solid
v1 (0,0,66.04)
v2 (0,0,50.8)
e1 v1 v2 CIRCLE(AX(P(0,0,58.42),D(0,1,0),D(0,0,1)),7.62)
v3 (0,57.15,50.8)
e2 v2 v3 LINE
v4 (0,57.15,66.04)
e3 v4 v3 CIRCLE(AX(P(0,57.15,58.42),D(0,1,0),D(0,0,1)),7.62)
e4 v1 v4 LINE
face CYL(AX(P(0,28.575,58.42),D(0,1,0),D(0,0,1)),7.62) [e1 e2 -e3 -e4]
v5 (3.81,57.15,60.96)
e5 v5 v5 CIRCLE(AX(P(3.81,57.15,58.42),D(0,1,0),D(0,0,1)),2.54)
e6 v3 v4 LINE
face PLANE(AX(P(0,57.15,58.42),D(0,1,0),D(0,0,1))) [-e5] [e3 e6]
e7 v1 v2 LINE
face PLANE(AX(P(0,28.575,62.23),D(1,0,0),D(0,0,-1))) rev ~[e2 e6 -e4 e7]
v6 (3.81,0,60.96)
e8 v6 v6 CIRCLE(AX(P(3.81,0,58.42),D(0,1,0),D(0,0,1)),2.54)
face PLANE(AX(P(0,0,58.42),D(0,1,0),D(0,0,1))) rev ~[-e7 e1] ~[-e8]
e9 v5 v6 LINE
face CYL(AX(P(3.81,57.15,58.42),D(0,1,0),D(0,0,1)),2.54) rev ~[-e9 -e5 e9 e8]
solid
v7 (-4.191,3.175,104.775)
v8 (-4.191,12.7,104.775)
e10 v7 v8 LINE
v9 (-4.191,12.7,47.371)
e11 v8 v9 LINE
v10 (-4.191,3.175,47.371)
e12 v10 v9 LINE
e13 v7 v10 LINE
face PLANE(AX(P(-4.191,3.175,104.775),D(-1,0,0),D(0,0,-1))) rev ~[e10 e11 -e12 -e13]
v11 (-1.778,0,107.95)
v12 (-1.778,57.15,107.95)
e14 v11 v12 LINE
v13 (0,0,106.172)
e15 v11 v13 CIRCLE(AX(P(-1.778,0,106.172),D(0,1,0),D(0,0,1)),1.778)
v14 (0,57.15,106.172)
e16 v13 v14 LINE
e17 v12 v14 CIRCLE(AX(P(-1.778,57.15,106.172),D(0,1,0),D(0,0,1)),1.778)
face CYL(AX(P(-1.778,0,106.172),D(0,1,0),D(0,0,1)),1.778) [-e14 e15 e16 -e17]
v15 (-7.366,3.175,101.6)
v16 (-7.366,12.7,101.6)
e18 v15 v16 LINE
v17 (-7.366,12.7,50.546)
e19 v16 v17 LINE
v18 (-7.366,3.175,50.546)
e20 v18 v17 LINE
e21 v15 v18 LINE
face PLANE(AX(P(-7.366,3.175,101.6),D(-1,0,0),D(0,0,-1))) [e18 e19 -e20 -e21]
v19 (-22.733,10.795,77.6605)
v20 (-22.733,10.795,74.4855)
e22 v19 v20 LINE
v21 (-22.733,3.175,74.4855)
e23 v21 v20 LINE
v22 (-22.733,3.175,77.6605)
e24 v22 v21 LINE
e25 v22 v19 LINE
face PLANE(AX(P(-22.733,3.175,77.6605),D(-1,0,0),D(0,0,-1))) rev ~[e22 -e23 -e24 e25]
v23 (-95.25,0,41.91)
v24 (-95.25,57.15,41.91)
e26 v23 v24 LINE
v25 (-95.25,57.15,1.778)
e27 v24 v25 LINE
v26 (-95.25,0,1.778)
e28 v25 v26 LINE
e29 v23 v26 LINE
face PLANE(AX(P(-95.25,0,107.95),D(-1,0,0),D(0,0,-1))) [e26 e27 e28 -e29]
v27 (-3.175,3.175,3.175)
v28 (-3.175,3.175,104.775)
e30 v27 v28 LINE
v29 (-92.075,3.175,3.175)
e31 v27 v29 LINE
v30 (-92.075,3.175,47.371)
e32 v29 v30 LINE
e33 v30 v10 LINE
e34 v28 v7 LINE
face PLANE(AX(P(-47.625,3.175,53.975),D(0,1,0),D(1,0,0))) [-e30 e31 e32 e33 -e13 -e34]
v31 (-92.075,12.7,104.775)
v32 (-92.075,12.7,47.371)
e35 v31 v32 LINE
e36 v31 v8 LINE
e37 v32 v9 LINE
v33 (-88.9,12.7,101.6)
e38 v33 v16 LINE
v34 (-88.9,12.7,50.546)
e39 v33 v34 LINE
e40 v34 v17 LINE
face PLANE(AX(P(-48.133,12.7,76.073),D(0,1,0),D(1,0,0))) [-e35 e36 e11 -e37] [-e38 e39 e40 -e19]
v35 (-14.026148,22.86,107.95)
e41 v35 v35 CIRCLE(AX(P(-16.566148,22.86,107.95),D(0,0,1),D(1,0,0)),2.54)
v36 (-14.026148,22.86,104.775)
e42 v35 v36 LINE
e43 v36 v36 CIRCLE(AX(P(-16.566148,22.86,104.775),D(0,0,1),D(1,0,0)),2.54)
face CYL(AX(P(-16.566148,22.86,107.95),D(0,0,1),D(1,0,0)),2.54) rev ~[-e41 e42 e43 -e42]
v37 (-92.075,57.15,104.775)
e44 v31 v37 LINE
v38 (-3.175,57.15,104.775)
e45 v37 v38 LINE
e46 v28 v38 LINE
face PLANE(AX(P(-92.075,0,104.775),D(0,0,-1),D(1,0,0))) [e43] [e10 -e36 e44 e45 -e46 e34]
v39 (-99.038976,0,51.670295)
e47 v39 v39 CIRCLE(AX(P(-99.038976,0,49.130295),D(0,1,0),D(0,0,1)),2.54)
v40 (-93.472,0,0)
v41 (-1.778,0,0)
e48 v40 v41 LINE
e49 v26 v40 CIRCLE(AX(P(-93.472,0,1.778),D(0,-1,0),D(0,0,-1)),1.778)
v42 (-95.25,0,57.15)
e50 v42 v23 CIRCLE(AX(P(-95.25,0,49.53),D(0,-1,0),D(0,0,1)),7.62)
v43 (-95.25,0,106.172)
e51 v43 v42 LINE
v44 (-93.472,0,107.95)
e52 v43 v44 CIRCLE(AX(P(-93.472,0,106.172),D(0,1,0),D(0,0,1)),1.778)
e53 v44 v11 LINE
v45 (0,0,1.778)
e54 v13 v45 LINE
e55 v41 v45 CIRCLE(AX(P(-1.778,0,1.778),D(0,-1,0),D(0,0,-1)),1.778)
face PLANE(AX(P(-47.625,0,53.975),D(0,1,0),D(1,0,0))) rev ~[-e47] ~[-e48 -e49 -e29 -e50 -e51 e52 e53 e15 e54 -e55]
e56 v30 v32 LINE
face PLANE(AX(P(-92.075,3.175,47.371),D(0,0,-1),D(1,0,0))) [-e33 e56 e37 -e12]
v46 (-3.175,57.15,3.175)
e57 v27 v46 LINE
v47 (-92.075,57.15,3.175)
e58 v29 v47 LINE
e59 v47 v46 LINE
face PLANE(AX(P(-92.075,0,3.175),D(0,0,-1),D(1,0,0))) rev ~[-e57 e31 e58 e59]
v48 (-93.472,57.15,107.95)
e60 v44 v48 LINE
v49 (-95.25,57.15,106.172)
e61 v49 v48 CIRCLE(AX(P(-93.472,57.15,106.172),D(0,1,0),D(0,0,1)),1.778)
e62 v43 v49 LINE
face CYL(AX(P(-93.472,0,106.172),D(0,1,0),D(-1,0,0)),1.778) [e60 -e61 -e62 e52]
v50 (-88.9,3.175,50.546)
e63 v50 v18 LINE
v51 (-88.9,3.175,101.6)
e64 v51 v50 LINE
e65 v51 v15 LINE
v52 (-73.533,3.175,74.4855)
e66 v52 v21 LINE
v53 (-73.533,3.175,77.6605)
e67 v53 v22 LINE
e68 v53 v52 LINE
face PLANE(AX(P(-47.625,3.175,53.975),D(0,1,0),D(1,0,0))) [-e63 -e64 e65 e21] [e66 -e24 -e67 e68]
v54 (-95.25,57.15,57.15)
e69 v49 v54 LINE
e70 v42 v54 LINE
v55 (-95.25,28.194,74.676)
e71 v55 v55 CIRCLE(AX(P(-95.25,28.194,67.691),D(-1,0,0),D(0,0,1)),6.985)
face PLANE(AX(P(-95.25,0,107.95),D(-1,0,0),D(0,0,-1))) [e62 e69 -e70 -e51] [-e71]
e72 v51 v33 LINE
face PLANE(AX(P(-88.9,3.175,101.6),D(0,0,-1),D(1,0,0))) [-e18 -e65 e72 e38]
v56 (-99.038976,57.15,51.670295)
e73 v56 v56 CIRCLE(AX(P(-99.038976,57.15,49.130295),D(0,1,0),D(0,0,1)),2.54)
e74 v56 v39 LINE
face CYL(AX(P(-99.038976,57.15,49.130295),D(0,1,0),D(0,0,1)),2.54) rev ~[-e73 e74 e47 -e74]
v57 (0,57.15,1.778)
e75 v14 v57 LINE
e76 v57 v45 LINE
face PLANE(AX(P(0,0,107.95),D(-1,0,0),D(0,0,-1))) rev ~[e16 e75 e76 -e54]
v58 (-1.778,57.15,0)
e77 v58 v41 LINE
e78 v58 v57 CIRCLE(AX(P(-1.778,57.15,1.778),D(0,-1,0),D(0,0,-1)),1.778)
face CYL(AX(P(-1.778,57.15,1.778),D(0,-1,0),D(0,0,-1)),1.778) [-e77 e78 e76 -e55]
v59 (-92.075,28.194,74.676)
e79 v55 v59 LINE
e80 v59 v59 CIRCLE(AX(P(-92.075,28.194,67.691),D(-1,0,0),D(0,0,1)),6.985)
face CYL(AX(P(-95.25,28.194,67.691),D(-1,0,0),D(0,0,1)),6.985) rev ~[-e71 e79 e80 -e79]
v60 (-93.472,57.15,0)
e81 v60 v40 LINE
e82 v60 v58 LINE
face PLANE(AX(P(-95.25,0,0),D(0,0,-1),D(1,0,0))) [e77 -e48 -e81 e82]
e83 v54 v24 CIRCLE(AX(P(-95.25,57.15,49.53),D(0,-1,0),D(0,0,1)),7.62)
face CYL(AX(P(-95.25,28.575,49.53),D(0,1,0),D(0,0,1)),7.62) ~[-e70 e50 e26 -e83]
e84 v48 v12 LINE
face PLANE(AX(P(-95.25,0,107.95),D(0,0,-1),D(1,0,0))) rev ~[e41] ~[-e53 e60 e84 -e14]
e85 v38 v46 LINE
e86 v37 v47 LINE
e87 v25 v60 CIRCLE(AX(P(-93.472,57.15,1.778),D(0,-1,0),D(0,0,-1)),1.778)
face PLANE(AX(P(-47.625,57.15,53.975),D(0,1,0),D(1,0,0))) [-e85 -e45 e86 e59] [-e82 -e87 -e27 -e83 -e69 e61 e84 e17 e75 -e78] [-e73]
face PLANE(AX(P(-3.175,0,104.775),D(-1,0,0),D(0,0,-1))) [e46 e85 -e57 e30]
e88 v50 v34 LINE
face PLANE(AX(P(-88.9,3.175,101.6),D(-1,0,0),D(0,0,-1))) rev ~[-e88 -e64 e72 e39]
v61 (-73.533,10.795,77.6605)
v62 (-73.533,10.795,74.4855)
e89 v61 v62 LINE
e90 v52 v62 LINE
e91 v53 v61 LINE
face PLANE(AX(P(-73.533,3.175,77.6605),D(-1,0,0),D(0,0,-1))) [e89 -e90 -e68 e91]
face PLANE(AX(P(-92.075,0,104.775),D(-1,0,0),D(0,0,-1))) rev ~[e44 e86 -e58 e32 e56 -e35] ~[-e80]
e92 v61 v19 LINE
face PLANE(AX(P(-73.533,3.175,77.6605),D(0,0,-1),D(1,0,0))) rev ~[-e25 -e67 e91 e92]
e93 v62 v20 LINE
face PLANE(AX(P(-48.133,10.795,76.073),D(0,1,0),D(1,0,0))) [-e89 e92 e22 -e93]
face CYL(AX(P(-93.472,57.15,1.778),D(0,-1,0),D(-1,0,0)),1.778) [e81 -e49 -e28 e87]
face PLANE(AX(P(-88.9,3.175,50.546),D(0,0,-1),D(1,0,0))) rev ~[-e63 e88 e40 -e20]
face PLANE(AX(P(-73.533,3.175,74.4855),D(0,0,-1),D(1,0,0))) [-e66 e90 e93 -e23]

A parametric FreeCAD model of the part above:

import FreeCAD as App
import Part
import Sketcher
Q = App.Units.Quantity


def edges_at(feature, points):
    """Names of the edges that pass closest to the given points."""
    edges = feature.Shape.Edges
    near = lambda p: min(range(len(edges)), key=lambda i: edges[i].distToShape(Part.Vertex(*p))[0])
    return sorted({f"Edge{near(p) + 1}" for p in points})


def add_polygon(sketch, points):
    """Adds a closed chain of lines whose ends are joined by coincident constraints."""
    first, n = sketch.GeometryCount, len(points)
    for a, b in zip(points, points[1:] + points[:1]):
        sketch.addGeometry(Part.LineSegment(App.Vector(*a, 0), App.Vector(*b, 0)), False)
    for i in range(n):
        sketch.addConstraint(Sketcher.Constraint("Coincident", first + i, 2, first + (i + 1) % n, 1))

doc = App.newDocument("Part")
body = doc.addObject("PartDesign::Body", "Body")

# Sketch on XZ plane
sketch1 = doc.addObject("Sketcher::SketchObject", "Sketch")
body.addObject(sketch1)
sketch1.AttachmentSupport = (doc.XZ_Plane, [""])
sketch1.MapMode = "FlatFace"
add_polygon(sketch1, [(-95, 0), (-95, 108), (0, 108), (0, 0)])  # lines 0-3
sketch1.addConstraint(Sketcher.Constraint("Vertical", 0))
sketch1.addConstraint(Sketcher.Constraint("Horizontal", 1))
sketch1.addConstraint(Sketcher.Constraint("Vertical", 2))
sketch1.addConstraint(Sketcher.Constraint("Horizontal", 3))
sketch1.addConstraint(Sketcher.Constraint("Coincident", 2, 2, -1, 1))
sketch1.addConstraint(Sketcher.Constraint("DistanceX", 1, 1, 1, 2, Q("3.75 in")))
sketch1.addConstraint(Sketcher.Constraint("DistanceY", 0, 1, 0, 2, Q("4.25 in")))
pad1 = doc.addObject("PartDesign::Pad", "Pad")
body.addObject(pad1)
pad1.Profile = sketch1
pad1.Length = Q("0.125 in")
pad1.Reversed = True

# Sketch on XZ plane
sketch2 = doc.addObject("Sketcher::SketchObject", "Sketch001")
body.addObject(sketch2)
sketch2.AttachmentSupport = (doc.XZ_Plane, [""])
sketch2.MapMode = "FlatFace"
add_polygon(sketch2, [(-95, 0), (-95, 108), (0, 108), (0, 0)])  # lines 0-3
add_polygon(sketch2, [(-3, 105), (-92, 105), (-92, 3), (-3, 3)])  # lines 4-7
sketch2.addConstraint(Sketcher.Constraint("Vertical", 0))
sketch2.addConstraint(Sketcher.Constraint("Horizontal", 1))
sketch2.addConstraint(Sketcher.Constraint("Vertical", 2))
sketch2.addConstraint(Sketcher.Constraint("Horizontal", 3))
sketch2.addConstraint(Sketcher.Constraint("Horizontal", 4))
sketch2.addConstraint(Sketcher.Constraint("Vertical", 5))
sketch2.addConstraint(Sketcher.Constraint("Horizontal", 6))
sketch2.addConstraint(Sketcher.Constraint("Vertical", 7))
sketch2.addConstraint(Sketcher.Constraint("Coincident", 2, 2, -1, 1))
sketch2.addConstraint(Sketcher.Constraint("DistanceY", 5, 2, 5, 1, Q("4 in")))
sketch2.addConstraint(Sketcher.Constraint("DistanceX", 4, 2, 4, 1, Q("3.5 in")))
sketch2.addConstraint(Sketcher.Constraint("DistanceX", 1, 1, 1, 2, Q("3.75 in")))
sketch2.addConstraint(Sketcher.Constraint("DistanceY", 0, 1, 0, 2, Q("4.25 in")))
sketch2.addConstraint(Sketcher.Constraint("DistanceX", 4, 2, -1, 1, Q("3.625 in")))
sketch2.addConstraint(Sketcher.Constraint("DistanceY", -1, 1, 4, 2, Q("4.125 in")))
pad2 = doc.addObject("PartDesign::Pad", "Pad001")
body.addObject(pad2)
pad2.Profile = sketch2
pad2.Length = Q("2.25 in")
pad2.Reversed = True

# Sketch on XY plane
sketch3 = doc.addObject("Sketcher::SketchObject", "Sketch002")
body.addObject(sketch3)
sketch3.AttachmentSupport = (doc.XY_Plane, [""])
sketch3.MapMode = "FlatFace"
sketch3.AttachmentOffset = App.Placement(App.Vector(0, 0, 4.25 * 25.4), App.Rotation())
sketch3.addGeometry(Part.Circle(App.Vector(-16.6, 22.9, 0), App.Vector(0, 0, 1), 2.5), False)
sketch3.addConstraint(Sketcher.Constraint("Diameter", 0, Q("0.2 in")))
sketch3.addConstraint(Sketcher.Constraint("DistanceY", -1, 1, 0, 3, Q("0.9 in")))
sketch3.addConstraint(Sketcher.Constraint("DistanceX", 0, 3, -1, 1, Q("16.566148 mm")))
pocket1 = doc.addObject("PartDesign::Pocket", "Pocket")
body.addObject(pocket1)
pocket1.Profile = sketch3
pocket1.Length = Q("0.5 in")
doc.recompute()

fillet = doc.addObject("PartDesign::Fillet", "Fillet")
body.addObject(fillet)
fillet.Base = (pocket1, edges_at(pocket1, [
    (0, 28.575, 0),
    (0, 28.575, 107.95),
    (-95.25, 28.575, 107.95),
    (-95.25, 28.575, 0),
]))
fillet.Radius = Q("0.07 in")

# Sketch on YZ plane
sketch4 = doc.addObject("Sketcher::SketchObject", "Sketch003")
body.addObject(sketch4)
sketch4.AttachmentSupport = (doc.YZ_Plane, [""])
sketch4.MapMode = "FlatFace"
sketch4.AttachmentOffset = App.Placement(App.Vector(0, 0, -3.75 * 25.4), App.Rotation())
add_polygon(sketch4, [(57, 50), (0, 50), (0, 57), (57, 57)])  # lines 0-3
sketch4.addGeometry(Part.LineSegment(App.Vector(57, 50, 0), App.Vector(0, 50, 0)), True)  # axis
sketch4.addConstraint(Sketcher.Constraint("Horizontal", 0))
sketch4.addConstraint(Sketcher.Constraint("Vertical", 1))
sketch4.addConstraint(Sketcher.Constraint("Horizontal", 2))
sketch4.addConstraint(Sketcher.Constraint("Vertical", 3))
sketch4.addConstraint(Sketcher.Constraint("Horizontal", 4))
sketch4.addConstraint(Sketcher.Constraint("Coincident", 4, 1, 3, 2))
sketch4.addConstraint(Sketcher.Constraint("PointOnObject", 0, 2, -2))
sketch4.addConstraint(Sketcher.Constraint("PointOnObject", 4, 2, -2))
sketch4.addConstraint(Sketcher.Constraint("DistanceY", 1, 1, 1, 2, Q("0.3 in")))
sketch4.addConstraint(Sketcher.Constraint("DistanceX", 0, 2, 0, 1, Q("2.25 in")))
sketch4.addConstraint(Sketcher.Constraint("DistanceY", -1, 1, 0, 2, Q("1.95 in")))
revolution = doc.addObject("PartDesign::Revolution", "Revolution")
body.addObject(revolution)
revolution.Profile = sketch4
revolution.ReferenceAxis = (sketch4, ["Axis0"])
revolution.Angle = 180

# Sketch on XZ plane
sketch5 = doc.addObject("Sketcher::SketchObject", "Sketch004")
body.addObject(sketch5)
sketch5.AttachmentSupport = (doc.XZ_Plane, [""])
sketch5.MapMode = "FlatFace"
sketch5.AttachmentOffset = App.Placement(App.Vector(0, 0, -2.25 * 25.4), App.Rotation())
sketch5.addGeometry(Part.Circle(App.Vector(-99, 49.1, 0), App.Vector(0, 0, 1), 2.5), False)
sketch5.addConstraint(Sketcher.Constraint("Diameter", 0, Q("0.2 in")))
sketch5.addConstraint(Sketcher.Constraint("DistanceX", 0, 3, -1, 1, Q("99.038976 mm")))
sketch5.addConstraint(Sketcher.Constraint("DistanceY", -1, 1, 0, 3, Q("49.130295 mm")))
pocket2 = doc.addObject("PartDesign::Pocket", "Pocket001")
body.addObject(pocket2)
pocket2.Profile = sketch5
pocket2.Type = "ThroughAll"
pocket2.Reversed = True

# Sketch on XZ plane
sketch6 = doc.addObject("Sketcher::SketchObject", "Sketch005")
body.addObject(sketch6)
sketch6.AttachmentSupport = (doc.XZ_Plane, [""])
sketch6.MapMode = "FlatFace"
sketch6.AttachmentOffset = App.Placement(App.Vector(0, 0, -0.125 * 25.4), App.Rotation())
add_polygon(sketch6, [(-92, 47), (-92, 105), (-4, 105), (-4, 47)])  # lines 0-3
add_polygon(sketch6, [(-7, 102), (-89, 102), (-89, 51), (-7, 51)])  # lines 4-7
sketch6.addConstraint(Sketcher.Constraint("Vertical", 0))
sketch6.addConstraint(Sketcher.Constraint("Horizontal", 1))
sketch6.addConstraint(Sketcher.Constraint("Vertical", 2))
sketch6.addConstraint(Sketcher.Constraint("Horizontal", 3))
sketch6.addConstraint(Sketcher.Constraint("Horizontal", 4))
sketch6.addConstraint(Sketcher.Constraint("Vertical", 5))
sketch6.addConstraint(Sketcher.Constraint("Horizontal", 6))
sketch6.addConstraint(Sketcher.Constraint("Vertical", 7))
sketch6.addConstraint(Sketcher.Constraint("DistanceY", -1, 1, 4, 2, Q("4 in")))
sketch6.addConstraint(Sketcher.Constraint("DistanceX", 1, 1, 1, 2, Q("3.46 in")))
sketch6.addConstraint(Sketcher.Constraint("DistanceX", 4, 2, 4, 1, Q("3.21 in")))
sketch6.addConstraint(Sketcher.Constraint("DistanceY", 0, 1, 0, 2, Q("2.26 in")))
sketch6.addConstraint(Sketcher.Constraint("DistanceY", 5, 2, 5, 1, Q("2.01 in")))
sketch6.addConstraint(Sketcher.Constraint("DistanceX", 4, 2, -1, 1, Q("3.5 in")))
sketch6.addConstraint(Sketcher.Constraint("DistanceX", 0, 2, -1, 1, Q("3.625 in")))
sketch6.addConstraint(Sketcher.Constraint("DistanceY", -1, 1, 0, 2, Q("4.125 in")))
pad3 = doc.addObject("PartDesign::Pad", "Pad002")
body.addObject(pad3)
pad3.Profile = sketch6
pad3.Length = Q("0.375 in")
pad3.Reversed = True

# Sketch on XZ plane
sketch7 = doc.addObject("Sketcher::SketchObject", "Sketch006")
body.addObject(sketch7)
sketch7.AttachmentSupport = (doc.XZ_Plane, [""])
sketch7.MapMode = "FlatFace"
sketch7.AttachmentOffset = App.Placement(App.Vector(0, 0, -0.125 * 25.4), App.Rotation())
add_polygon(sketch7, [(-73.5, 74.5), (-73.5, 77.7), (-22.7, 77.7), (-22.7, 74.5)])  # lines 0-3
sketch7.addConstraint(Sketcher.Constraint("Vertical", 0))
sketch7.addConstraint(Sketcher.Constraint("Horizontal", 1))
sketch7.addConstraint(Sketcher.Constraint("Vertical", 2))
sketch7.addConstraint(Sketcher.Constraint("Horizontal", 3))
sketch7.addConstraint(Sketcher.Constraint("DistanceX", 1, 1, 1, 2, Q("2 in")))
sketch7.addConstraint(Sketcher.Constraint("DistanceY", 0, 1, 0, 2, Q("0.125 in")))
sketch7.addConstraint(Sketcher.Constraint("DistanceX", 0, 2, -1, 1, Q("2.895 in")))
sketch7.addConstraint(Sketcher.Constraint("DistanceY", -1, 1, 0, 2, Q("3.0575 in")))
pad4 = doc.addObject("PartDesign::Pad", "Pad003")
body.addObject(pad4)
pad4.Profile = sketch7
pad4.Length = Q("0.3 in")
pad4.Reversed = True

# Sketch on YZ plane
sketch8 = doc.addObject("Sketcher::SketchObject", "Sketch007")
body.addObject(sketch8)
sketch8.AttachmentSupport = (doc.YZ_Plane, [""])
sketch8.MapMode = "FlatFace"
sketch8.AttachmentOffset = App.Placement(App.Vector(0, 0, -3.75 * 25.4), App.Rotation())
sketch8.addGeometry(Part.Circle(App.Vector(28, 68, 0), App.Vector(0, 0, 1), 7), False)
sketch8.addConstraint(Sketcher.Constraint("Diameter", 0, Q("0.55 in")))
sketch8.addConstraint(Sketcher.Constraint("DistanceX", -1, 1, 0, 3, Q("1.11 in")))
sketch8.addConstraint(Sketcher.Constraint("DistanceY", -1, 1, 0, 3, Q("2.665 in")))
pocket3 = doc.addObject("PartDesign::Pocket", "Pocket002")
body.addObject(pocket3)
pocket3.Profile = sketch8
pocket3.Length = Q("0.3 in")
pocket3.Reversed = True
body2 = doc.addObject("PartDesign::Body", "Body001")

# Sketch on YZ plane
sketch9 = doc.addObject("Sketcher::SketchObject", "Sketch008")
body2.addObject(sketch9)
sketch9.AttachmentSupport = (doc.getObject("YZ_Plane001"), [""])
sketch9.MapMode = "FlatFace"
add_polygon(sketch9, [(57, 66), (0, 66), (0, 58), (57, 58)])  # lines 0-3
sketch9.addGeometry(Part.LineSegment(App.Vector(0, 58, 0), App.Vector(57, 58, 0)), True)  # axis
sketch9.addConstraint(Sketcher.Constraint("Horizontal", 0))
sketch9.addConstraint(Sketcher.Constraint("Vertical", 1))
sketch9.addConstraint(Sketcher.Constraint("Horizontal", 2))
sketch9.addConstraint(Sketcher.Constraint("Vertical", 3))
sketch9.addConstraint(Sketcher.Constraint("Horizontal", 4))
sketch9.addConstraint(Sketcher.Constraint("Coincident", 4, 1, 1, 2))
sketch9.addConstraint(Sketcher.Constraint("PointOnObject", 0, 2, -2))
sketch9.addConstraint(Sketcher.Constraint("Vertical", 3, 2, 4, 2))
sketch9.addConstraint(Sketcher.Constraint("DistanceY", 1, 2, 1, 1, Q("0.3 in")))
sketch9.addConstraint(Sketcher.Constraint("DistanceX", 0, 2, 0, 1, Q("2.25 in")))
sketch9.addConstraint(Sketcher.Constraint("DistanceY", -1, 1, 0, 2, Q("2.6 in")))
revolution2 = doc.addObject("PartDesign::Revolution", "Revolution001")
body2.addObject(revolution2)
revolution2.Profile = sketch9
revolution2.ReferenceAxis = (sketch9, ["Axis0"])
revolution2.Angle = 180

# Sketch on XZ plane
sketch10 = doc.addObject("Sketcher::SketchObject", "Sketch009")
body2.addObject(sketch10)
sketch10.AttachmentSupport = (doc.getObject("XZ_Plane001"), [""])
sketch10.MapMode = "FlatFace"
sketch10.AttachmentOffset = App.Placement(App.Vector(0, 0, -2.25 * 25.4), App.Rotation())
sketch10.addGeometry(Part.Circle(App.Vector(3.8, 58.4, 0), App.Vector(0, 0, 1), 2.5), False)
sketch10.addConstraint(Sketcher.Constraint("Diameter", 0, Q("0.2 in")))
sketch10.addConstraint(Sketcher.Constraint("DistanceY", -1, 1, 0, 3, Q("2.3 in")))
sketch10.addConstraint(Sketcher.Constraint("DistanceX", -1, 1, 0, 3, Q("0.15 in")))
pocket4 = doc.addObject("PartDesign::Pocket", "Pocket003")
body2.addObject(pocket4)
pocket4.Profile = sketch10
pocket4.Type = "ThroughAll"
pocket4.Reversed = True

doc.recompute()
